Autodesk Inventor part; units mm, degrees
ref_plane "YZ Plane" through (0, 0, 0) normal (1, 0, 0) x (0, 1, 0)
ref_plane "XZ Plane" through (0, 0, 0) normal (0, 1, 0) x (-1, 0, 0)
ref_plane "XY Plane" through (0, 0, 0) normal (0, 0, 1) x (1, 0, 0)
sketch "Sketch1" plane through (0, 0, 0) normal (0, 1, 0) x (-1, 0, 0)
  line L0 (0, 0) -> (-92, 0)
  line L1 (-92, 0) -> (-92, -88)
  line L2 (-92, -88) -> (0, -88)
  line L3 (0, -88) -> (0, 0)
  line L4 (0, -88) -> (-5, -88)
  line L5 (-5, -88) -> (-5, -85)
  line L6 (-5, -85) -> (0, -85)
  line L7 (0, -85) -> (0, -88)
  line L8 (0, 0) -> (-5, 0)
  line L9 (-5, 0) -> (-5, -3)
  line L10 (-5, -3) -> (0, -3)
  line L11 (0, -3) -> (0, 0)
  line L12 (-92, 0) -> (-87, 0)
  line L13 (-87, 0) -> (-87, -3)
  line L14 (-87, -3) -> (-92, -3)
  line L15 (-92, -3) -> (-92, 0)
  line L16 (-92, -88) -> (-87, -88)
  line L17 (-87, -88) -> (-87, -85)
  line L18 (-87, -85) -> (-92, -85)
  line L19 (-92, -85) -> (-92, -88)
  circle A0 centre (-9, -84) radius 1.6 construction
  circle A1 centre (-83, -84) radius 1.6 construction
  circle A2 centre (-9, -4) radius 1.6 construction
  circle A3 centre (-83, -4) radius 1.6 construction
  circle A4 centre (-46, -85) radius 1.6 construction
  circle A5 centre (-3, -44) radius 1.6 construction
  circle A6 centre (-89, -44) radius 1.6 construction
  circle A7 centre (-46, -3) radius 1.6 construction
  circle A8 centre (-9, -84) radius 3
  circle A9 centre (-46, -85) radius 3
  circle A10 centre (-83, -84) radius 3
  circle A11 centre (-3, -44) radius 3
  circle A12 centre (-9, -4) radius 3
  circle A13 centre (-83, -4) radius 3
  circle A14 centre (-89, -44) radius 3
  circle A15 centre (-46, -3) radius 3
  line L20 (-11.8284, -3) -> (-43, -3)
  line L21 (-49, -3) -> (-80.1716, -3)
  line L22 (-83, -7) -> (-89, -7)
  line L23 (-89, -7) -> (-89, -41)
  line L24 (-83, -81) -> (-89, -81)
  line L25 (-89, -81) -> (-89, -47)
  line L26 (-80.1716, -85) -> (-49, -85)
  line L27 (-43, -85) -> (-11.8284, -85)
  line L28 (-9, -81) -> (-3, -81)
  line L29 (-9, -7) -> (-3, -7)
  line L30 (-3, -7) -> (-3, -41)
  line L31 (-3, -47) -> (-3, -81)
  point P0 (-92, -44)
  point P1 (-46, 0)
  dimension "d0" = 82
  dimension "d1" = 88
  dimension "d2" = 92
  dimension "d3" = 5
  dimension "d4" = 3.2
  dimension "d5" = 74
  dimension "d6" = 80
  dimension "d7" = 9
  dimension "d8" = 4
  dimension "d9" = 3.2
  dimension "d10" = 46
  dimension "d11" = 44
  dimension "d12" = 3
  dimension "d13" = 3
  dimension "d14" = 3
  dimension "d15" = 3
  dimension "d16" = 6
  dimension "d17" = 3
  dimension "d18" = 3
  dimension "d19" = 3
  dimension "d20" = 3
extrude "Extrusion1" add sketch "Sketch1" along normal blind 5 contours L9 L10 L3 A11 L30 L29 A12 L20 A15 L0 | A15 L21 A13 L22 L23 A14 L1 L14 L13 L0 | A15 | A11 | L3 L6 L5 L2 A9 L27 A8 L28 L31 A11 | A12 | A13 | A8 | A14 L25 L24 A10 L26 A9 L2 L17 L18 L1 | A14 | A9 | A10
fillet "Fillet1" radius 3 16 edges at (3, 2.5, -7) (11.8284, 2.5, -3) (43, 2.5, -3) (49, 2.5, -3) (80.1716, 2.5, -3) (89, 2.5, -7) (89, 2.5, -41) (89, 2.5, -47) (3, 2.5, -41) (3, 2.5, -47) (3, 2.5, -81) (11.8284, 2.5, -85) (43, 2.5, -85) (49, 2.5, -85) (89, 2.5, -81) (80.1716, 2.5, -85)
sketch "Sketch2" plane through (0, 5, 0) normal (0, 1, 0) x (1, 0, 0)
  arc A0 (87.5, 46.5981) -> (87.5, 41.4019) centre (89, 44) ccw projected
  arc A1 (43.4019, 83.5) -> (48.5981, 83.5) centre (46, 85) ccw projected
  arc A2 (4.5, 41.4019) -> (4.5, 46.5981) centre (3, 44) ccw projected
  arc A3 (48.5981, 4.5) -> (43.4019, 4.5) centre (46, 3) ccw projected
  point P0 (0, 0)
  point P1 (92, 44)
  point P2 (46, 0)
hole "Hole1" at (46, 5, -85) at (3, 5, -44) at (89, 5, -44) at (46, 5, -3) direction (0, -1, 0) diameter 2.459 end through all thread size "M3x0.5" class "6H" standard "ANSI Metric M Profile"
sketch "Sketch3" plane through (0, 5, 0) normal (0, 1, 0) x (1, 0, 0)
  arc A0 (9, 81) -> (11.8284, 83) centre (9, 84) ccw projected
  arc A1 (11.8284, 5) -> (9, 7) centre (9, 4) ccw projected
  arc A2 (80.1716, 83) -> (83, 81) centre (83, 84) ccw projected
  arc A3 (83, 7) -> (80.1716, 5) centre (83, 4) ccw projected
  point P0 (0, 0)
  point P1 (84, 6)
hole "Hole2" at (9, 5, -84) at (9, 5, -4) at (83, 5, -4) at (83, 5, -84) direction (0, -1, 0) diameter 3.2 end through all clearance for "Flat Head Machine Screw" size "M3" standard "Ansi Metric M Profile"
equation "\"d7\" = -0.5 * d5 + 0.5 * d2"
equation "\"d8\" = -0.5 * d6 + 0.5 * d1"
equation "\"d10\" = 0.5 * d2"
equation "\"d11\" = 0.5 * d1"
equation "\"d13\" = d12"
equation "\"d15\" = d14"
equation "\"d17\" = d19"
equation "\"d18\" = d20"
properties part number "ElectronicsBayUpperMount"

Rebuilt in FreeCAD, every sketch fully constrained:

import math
import FreeCAD as App
import Part
import Sketcher


def edges_at(feature, points):
    """Names of the edges that pass closest to the given points."""
    edges = feature.Shape.Edges
    near = lambda p: min(range(len(edges)), key=lambda i: edges[i].distToShape(Part.Vertex(*p))[0])
    return sorted({f"Edge{near(p) + 1}" for p in points})


def add_polygon(sketch, points):
    """Adds a closed chain of lines whose ends are joined by coincident constraints."""
    first, n = sketch.GeometryCount, len(points)
    for a, b in zip(points, points[1:] + points[:1]):
        sketch.addGeometry(Part.LineSegment(App.Vector(*a, 0), App.Vector(*b, 0)), False)
    for i in range(n):
        sketch.addConstraint(Sketcher.Constraint("Coincident", first + i, 2, first + (i + 1) % n, 1))

doc = App.newDocument("Part")
body = doc.addObject("PartDesign::Body", "Body")

# Sketch on XZ plane
sketch1 = body.newObject("Sketcher::SketchObject", "Sketch")
sketch1.AttachmentSupport = (doc.getObject("XZ_Plane"), [""])
sketch1.MapMode = "FlatFace"
add_polygon(sketch1, [(5, -3), (5, 0), (87, 0), (87, -3), (92, -3), (92, -85), (87, -85), (87, -88), (5, -88), (5, -85), (0, -85), (0, -3)])  # lines 0-11
sketch1.addGeometry(Part.LineSegment(App.Vector(3, -7, 0), App.Vector(3, -41, 0)), False)  # 12
sketch1.addGeometry(Part.ArcOfCircle(Part.Circle(App.Vector(3, -44, 0), App.Vector(0, 0, 1), 3), math.radians(-90), math.radians(90)), False)  # 13
sketch1.addGeometry(Part.LineSegment(App.Vector(3, -47, 0), App.Vector(3, -81, 0)), False)  # 14
sketch1.addGeometry(Part.LineSegment(App.Vector(3, -81, 0), App.Vector(9, -81, 0)), False)  # 15
sketch1.addGeometry(Part.ArcOfCircle(Part.Circle(App.Vector(9, -84, 0), App.Vector(0, 0, 1), 3), math.radians(-19), math.radians(90)), False)  # 16
sketch1.addGeometry(Part.LineSegment(App.Vector(11.8, -85, 0), App.Vector(43, -85, 0)), False)  # 17
sketch1.addGeometry(Part.ArcOfCircle(Part.Circle(App.Vector(46, -85, 0), App.Vector(0, 0, 1), 3), math.radians(0), math.radians(180)), False)  # 18
sketch1.addGeometry(Part.LineSegment(App.Vector(49, -85, 0), App.Vector(80.2, -85, 0)), False)  # 19
sketch1.addGeometry(Part.ArcOfCircle(Part.Circle(App.Vector(83, -84, 0), App.Vector(0, 0, 1), 3), math.radians(90), math.radians(199)), False)  # 20
sketch1.addGeometry(Part.LineSegment(App.Vector(83, -81, 0), App.Vector(89, -81, 0)), False)  # 21
sketch1.addGeometry(Part.LineSegment(App.Vector(89, -81, 0), App.Vector(89, -47, 0)), False)  # 22
sketch1.addGeometry(Part.ArcOfCircle(Part.Circle(App.Vector(89, -44, 0), App.Vector(0, 0, 1), 3), math.radians(90), math.radians(270)), False)  # 23
sketch1.addGeometry(Part.LineSegment(App.Vector(89, -41, 0), App.Vector(89, -7, 0)), False)  # 24
sketch1.addGeometry(Part.LineSegment(App.Vector(89, -7, 0), App.Vector(83, -7, 0)), False)  # 25
sketch1.addGeometry(Part.ArcOfCircle(Part.Circle(App.Vector(83, -4, 0), App.Vector(0, 0, 1), 3), math.radians(161), math.radians(270)), False)  # 26
sketch1.addGeometry(Part.LineSegment(App.Vector(80.2, -3, 0), App.Vector(49, -3, 0)), False)  # 27
sketch1.addGeometry(Part.ArcOfCircle(Part.Circle(App.Vector(46, -3, 0), App.Vector(0, 0, 1), 3), math.radians(180), math.radians(360)), False)  # 28
sketch1.addGeometry(Part.LineSegment(App.Vector(43, -3, 0), App.Vector(11.8, -3, 0)), False)  # 29
sketch1.addGeometry(Part.ArcOfCircle(Part.Circle(App.Vector(9, -4, 0), App.Vector(0, 0, 1), 3), math.radians(-90), math.radians(19)), False)  # 30
sketch1.addGeometry(Part.LineSegment(App.Vector(9, -7, 0), App.Vector(3, -7, 0)), False)  # 31
sketch1.addConstraint([
    Sketcher.Constraint("Coincident", 12, 2, 13, 2),
    Sketcher.Constraint("Coincident", 13, 1, 14, 1),
    Sketcher.Constraint("Coincident", 14, 2, 15, 1),
    Sketcher.Constraint("Tangent", 15, 2, 16, 2),
    Sketcher.Constraint("Coincident", 16, 1, 17, 1),
    Sketcher.Constraint("Coincident", 17, 2, 18, 2),
    Sketcher.Constraint("Coincident", 18, 1, 19, 1),
    Sketcher.Constraint("Coincident", 19, 2, 20, 2),
    Sketcher.Constraint("Tangent", 20, 1, 21, 1),
    Sketcher.Constraint("Coincident", 21, 2, 22, 1),
    Sketcher.Constraint("Coincident", 22, 2, 23, 2),
    Sketcher.Constraint("Coincident", 23, 1, 24, 1),
    Sketcher.Constraint("Coincident", 24, 2, 25, 1),
    Sketcher.Constraint("Tangent", 25, 2, 26, 2),
    Sketcher.Constraint("Coincident", 26, 1, 27, 1),
    Sketcher.Constraint("Coincident", 27, 2, 28, 2),
    Sketcher.Constraint("Coincident", 28, 1, 29, 1),
    Sketcher.Constraint("Coincident", 29, 2, 30, 2),
    Sketcher.Constraint("Tangent", 30, 1, 31, 1),
    Sketcher.Constraint("Coincident", 31, 2, 12, 1),
    Sketcher.Constraint("Vertical", 0),
    Sketcher.Constraint("Horizontal", 1),
    Sketcher.Constraint("Vertical", 2),
    Sketcher.Constraint("Horizontal", 3),
    Sketcher.Constraint("Vertical", 4),
    Sketcher.Constraint("Horizontal", 5),
    Sketcher.Constraint("Vertical", 6),
    Sketcher.Constraint("Horizontal", 7),
    Sketcher.Constraint("Vertical", 8),
    Sketcher.Constraint("Horizontal", 9),
    Sketcher.Constraint("Vertical", 10),
    Sketcher.Constraint("Horizontal", 11),
    Sketcher.Constraint("Vertical", 12),
    Sketcher.Constraint("Vertical", 14),
    Sketcher.Constraint("Horizontal", 15),
    Sketcher.Constraint("Horizontal", 17),
    Sketcher.Constraint("Horizontal", 19),
    Sketcher.Constraint("Horizontal", 21),
    Sketcher.Constraint("Vertical", 22),
    Sketcher.Constraint("Vertical", 24),
    Sketcher.Constraint("Horizontal", 25),
    Sketcher.Constraint("Horizontal", 27),
    Sketcher.Constraint("Horizontal", 29),
    Sketcher.Constraint("Horizontal", 31),
    Sketcher.Constraint("Equal", 13, 16),
    Sketcher.Constraint("Equal", 16, 18),
    Sketcher.Constraint("Equal", 18, 20),
    Sketcher.Constraint("Equal", 20, 23),
    Sketcher.Constraint("Equal", 23, 26),
    Sketcher.Constraint("Equal", 26, 28),
    Sketcher.Constraint("Equal", 28, 30),
    Sketcher.Constraint("PointOnObject", 0, 2, -1),
    Sketcher.Constraint("PointOnObject", 9, 2, -2),
    Sketcher.Constraint("Horizontal", 16, 3, 20, 3),
    Sketcher.Constraint("Horizontal", 13, 3, 23, 3),
    Sketcher.Constraint("Horizontal", 26, 3, 30, 3),
    Sketcher.Constraint("Horizontal", 28, 3, 2, 2),
    Sketcher.Constraint("Horizontal", 18, 3, 4, 2),
    Sketcher.Constraint("Horizontal", 5, 2, 8, 2),
    Sketcher.Constraint("Horizontal", 3, 2, 10, 2),
    Sketcher.Constraint("Horizontal", 9, 2, 16, 1),
    Sketcher.Constraint("Horizontal", 17, 2, 18, 1),
    Sketcher.Constraint("Horizontal", 11, 2, 26, 1),
    Sketcher.Constraint("Horizontal", 27, 2, 28, 1),
    Sketcher.Constraint("Vertical", 20, 3, 26, 3),
    Sketcher.Constraint("Vertical", 18, 3, 28, 3),
    Sketcher.Constraint("Vertical", 16, 3, 30, 3),
    Sketcher.Constraint("Vertical", 2, 2, 5, 2),
    Sketcher.Constraint("Vertical", 0, 2, 7, 2),
    Sketcher.Constraint("Vertical", 13, 3, 12, 2),
    Sketcher.Constraint("Vertical", 12, 2, 13, 1),
    Sketcher.Constraint("Vertical", 23, 3, 21, 2),
    Sketcher.Constraint("Vertical", 22, 2, 23, 1),
    Sketcher.Constraint("Vertical", 19, 2, 26, 1),
    Sketcher.Constraint("Equal", 5, 9),
    Sketcher.Constraint("Equal", 17, 19),
    Sketcher.Constraint("Equal", 15, 21),
    Sketcher.Constraint("Equal", 7, 4),
    Sketcher.Constraint("Equal", 2, 6),
    Sketcher.Constraint("Equal", 12, 14),
    Sketcher.Constraint("Radius", 13, 3.0),
    Sketcher.Constraint("DistanceX", 1, 1, 1, 2, 82.0),
    Sketcher.Constraint("DistanceX", 3, 1, 3, 2, 5.0),
    Sketcher.Constraint("DistanceX", 15, 1, 15, 2, 6.0),
    Sketcher.Constraint("DistanceY", 0, 1, 0, 2, 3.0),
    Sketcher.Constraint("DistanceX", -1, 1, 13, 3, 3.0),
    Sketcher.Constraint("DistanceX", -1, 1, 18, 3, 46.0),
    Sketcher.Constraint("DistanceY", 26, 3, -1, 1, 4.0),
])
pad1 = body.newObject("PartDesign::Pad", "Pad")
pad1.Profile = sketch1
pad1.Length = 5
pad1.Reversed = True
doc.recompute()

fillet = body.newObject("PartDesign::Fillet", "Fillet")
fillet.Base = (pad1, edges_at(pad1, [
    (3, 2.5, -7),
    (11.828, 2.5, -3),
    (43, 2.5, -3),
    (49, 2.5, -3),
    (80.172, 2.5, -3),
    (89, 2.5, -7),
    (89, 2.5, -41),
    (89, 2.5, -47),
    (3, 2.5, -41),
    (3, 2.5, -47),
    (3, 2.5, -81),
    (11.828, 2.5, -85),
    (43, 2.5, -85),
    (49, 2.5, -85),
    (89, 2.5, -81),
    (80.172, 2.5, -85),
]))
fillet.Radius = 3

# Sketch on XZ plane
sketch2 = body.newObject("Sketcher::SketchObject", "Sketch001")
sketch2.AttachmentSupport = (doc.getObject("XZ_Plane"), [""])
sketch2.MapMode = "FlatFace"
sketch2.AttachmentOffset = App.Placement(App.Vector(0, 0, -5), App.Rotation())
sketch2.addGeometry([
    Part.Circle(App.Vector(46, -85, 0), App.Vector(0, 0, 1), 1.2),
    Part.Circle(App.Vector(3, -44, 0), App.Vector(0, 0, 1), 1.2),
    Part.Circle(App.Vector(89, -44, 0), App.Vector(0, 0, 1), 1.2),
    Part.Circle(App.Vector(46, -3, 0), App.Vector(0, 0, 1), 1.2),
], False)
sketch2.addConstraint([
    Sketcher.Constraint("Equal", 0, 1),
    Sketcher.Constraint("Equal", 1, 2),
    Sketcher.Constraint("Equal", 2, 3),
    Sketcher.Constraint("Horizontal", 1, 3, 2, 3),
    Sketcher.Constraint("Vertical", 0, 3, 3, 3),
    Sketcher.Constraint("Diameter", 0, 2.459),
    Sketcher.Constraint("DistanceX", -1, 1, 0, 3, 46.0),
    Sketcher.Constraint("DistanceY", 0, 3, -1, 1, 85.0),
    Sketcher.Constraint("DistanceX", -1, 1, 1, 3, 3.0),
    Sketcher.Constraint("DistanceY", 1, 3, -1, 1, 44.0),
    Sketcher.Constraint("DistanceX", -1, 1, 2, 3, 89.0),
    Sketcher.Constraint("DistanceY", 3, 3, -1, 1, 3.0),
])
doc.recompute()
hole = body.newObject("PartDesign::Hole", "Hole")
hole.Profile = sketch2
hole.ThreadType = "None"
hole.Diameter = 2.459
hole.DepthType = "ThroughAll"
hole.Reversed = True

# Sketch on XZ plane
sketch3 = body.newObject("Sketcher::SketchObject", "Sketch002")
sketch3.AttachmentSupport = (doc.getObject("XZ_Plane"), [""])
sketch3.MapMode = "FlatFace"
sketch3.AttachmentOffset = App.Placement(App.Vector(0, 0, -5), App.Rotation())
sketch3.addGeometry([
    Part.Circle(App.Vector(9, -84, 0), App.Vector(0, 0, 1), 1.6),
    Part.Circle(App.Vector(9, -4, 0), App.Vector(0, 0, 1), 1.6),
    Part.Circle(App.Vector(83, -4, 0), App.Vector(0, 0, 1), 1.6),
    Part.Circle(App.Vector(83, -84, 0), App.Vector(0, 0, 1), 1.6),
], False)
sketch3.addConstraint([
    Sketcher.Constraint("Equal", 0, 1),
    Sketcher.Constraint("Equal", 1, 2),
    Sketcher.Constraint("Equal", 2, 3),
    Sketcher.Constraint("Horizontal", 1, 3, 2, 3),
    Sketcher.Constraint("Horizontal", 0, 3, 3, 3),
    Sketcher.Constraint("Vertical", 0, 3, 1, 3),
    Sketcher.Constraint("Vertical", 2, 3, 3, 3),
    Sketcher.Constraint("Diameter", 0, 3.2),
    Sketcher.Constraint("DistanceX", -1, 1, 0, 3, 9.0),
    Sketcher.Constraint("DistanceY", 0, 3, -1, 1, 84.0),
    Sketcher.Constraint("DistanceY", 1, 3, -1, 1, 4.0),
    Sketcher.Constraint("DistanceX", -1, 1, 2, 3, 83.0),
])
doc.recompute()
hole2 = body.newObject("PartDesign::Hole", "Hole001")
hole2.Profile = sketch3
hole2.ThreadType = "None"
hole2.Diameter = 3.2
hole2.DepthType = "ThroughAll"
hole2.Reversed = True

doc.recompute()
